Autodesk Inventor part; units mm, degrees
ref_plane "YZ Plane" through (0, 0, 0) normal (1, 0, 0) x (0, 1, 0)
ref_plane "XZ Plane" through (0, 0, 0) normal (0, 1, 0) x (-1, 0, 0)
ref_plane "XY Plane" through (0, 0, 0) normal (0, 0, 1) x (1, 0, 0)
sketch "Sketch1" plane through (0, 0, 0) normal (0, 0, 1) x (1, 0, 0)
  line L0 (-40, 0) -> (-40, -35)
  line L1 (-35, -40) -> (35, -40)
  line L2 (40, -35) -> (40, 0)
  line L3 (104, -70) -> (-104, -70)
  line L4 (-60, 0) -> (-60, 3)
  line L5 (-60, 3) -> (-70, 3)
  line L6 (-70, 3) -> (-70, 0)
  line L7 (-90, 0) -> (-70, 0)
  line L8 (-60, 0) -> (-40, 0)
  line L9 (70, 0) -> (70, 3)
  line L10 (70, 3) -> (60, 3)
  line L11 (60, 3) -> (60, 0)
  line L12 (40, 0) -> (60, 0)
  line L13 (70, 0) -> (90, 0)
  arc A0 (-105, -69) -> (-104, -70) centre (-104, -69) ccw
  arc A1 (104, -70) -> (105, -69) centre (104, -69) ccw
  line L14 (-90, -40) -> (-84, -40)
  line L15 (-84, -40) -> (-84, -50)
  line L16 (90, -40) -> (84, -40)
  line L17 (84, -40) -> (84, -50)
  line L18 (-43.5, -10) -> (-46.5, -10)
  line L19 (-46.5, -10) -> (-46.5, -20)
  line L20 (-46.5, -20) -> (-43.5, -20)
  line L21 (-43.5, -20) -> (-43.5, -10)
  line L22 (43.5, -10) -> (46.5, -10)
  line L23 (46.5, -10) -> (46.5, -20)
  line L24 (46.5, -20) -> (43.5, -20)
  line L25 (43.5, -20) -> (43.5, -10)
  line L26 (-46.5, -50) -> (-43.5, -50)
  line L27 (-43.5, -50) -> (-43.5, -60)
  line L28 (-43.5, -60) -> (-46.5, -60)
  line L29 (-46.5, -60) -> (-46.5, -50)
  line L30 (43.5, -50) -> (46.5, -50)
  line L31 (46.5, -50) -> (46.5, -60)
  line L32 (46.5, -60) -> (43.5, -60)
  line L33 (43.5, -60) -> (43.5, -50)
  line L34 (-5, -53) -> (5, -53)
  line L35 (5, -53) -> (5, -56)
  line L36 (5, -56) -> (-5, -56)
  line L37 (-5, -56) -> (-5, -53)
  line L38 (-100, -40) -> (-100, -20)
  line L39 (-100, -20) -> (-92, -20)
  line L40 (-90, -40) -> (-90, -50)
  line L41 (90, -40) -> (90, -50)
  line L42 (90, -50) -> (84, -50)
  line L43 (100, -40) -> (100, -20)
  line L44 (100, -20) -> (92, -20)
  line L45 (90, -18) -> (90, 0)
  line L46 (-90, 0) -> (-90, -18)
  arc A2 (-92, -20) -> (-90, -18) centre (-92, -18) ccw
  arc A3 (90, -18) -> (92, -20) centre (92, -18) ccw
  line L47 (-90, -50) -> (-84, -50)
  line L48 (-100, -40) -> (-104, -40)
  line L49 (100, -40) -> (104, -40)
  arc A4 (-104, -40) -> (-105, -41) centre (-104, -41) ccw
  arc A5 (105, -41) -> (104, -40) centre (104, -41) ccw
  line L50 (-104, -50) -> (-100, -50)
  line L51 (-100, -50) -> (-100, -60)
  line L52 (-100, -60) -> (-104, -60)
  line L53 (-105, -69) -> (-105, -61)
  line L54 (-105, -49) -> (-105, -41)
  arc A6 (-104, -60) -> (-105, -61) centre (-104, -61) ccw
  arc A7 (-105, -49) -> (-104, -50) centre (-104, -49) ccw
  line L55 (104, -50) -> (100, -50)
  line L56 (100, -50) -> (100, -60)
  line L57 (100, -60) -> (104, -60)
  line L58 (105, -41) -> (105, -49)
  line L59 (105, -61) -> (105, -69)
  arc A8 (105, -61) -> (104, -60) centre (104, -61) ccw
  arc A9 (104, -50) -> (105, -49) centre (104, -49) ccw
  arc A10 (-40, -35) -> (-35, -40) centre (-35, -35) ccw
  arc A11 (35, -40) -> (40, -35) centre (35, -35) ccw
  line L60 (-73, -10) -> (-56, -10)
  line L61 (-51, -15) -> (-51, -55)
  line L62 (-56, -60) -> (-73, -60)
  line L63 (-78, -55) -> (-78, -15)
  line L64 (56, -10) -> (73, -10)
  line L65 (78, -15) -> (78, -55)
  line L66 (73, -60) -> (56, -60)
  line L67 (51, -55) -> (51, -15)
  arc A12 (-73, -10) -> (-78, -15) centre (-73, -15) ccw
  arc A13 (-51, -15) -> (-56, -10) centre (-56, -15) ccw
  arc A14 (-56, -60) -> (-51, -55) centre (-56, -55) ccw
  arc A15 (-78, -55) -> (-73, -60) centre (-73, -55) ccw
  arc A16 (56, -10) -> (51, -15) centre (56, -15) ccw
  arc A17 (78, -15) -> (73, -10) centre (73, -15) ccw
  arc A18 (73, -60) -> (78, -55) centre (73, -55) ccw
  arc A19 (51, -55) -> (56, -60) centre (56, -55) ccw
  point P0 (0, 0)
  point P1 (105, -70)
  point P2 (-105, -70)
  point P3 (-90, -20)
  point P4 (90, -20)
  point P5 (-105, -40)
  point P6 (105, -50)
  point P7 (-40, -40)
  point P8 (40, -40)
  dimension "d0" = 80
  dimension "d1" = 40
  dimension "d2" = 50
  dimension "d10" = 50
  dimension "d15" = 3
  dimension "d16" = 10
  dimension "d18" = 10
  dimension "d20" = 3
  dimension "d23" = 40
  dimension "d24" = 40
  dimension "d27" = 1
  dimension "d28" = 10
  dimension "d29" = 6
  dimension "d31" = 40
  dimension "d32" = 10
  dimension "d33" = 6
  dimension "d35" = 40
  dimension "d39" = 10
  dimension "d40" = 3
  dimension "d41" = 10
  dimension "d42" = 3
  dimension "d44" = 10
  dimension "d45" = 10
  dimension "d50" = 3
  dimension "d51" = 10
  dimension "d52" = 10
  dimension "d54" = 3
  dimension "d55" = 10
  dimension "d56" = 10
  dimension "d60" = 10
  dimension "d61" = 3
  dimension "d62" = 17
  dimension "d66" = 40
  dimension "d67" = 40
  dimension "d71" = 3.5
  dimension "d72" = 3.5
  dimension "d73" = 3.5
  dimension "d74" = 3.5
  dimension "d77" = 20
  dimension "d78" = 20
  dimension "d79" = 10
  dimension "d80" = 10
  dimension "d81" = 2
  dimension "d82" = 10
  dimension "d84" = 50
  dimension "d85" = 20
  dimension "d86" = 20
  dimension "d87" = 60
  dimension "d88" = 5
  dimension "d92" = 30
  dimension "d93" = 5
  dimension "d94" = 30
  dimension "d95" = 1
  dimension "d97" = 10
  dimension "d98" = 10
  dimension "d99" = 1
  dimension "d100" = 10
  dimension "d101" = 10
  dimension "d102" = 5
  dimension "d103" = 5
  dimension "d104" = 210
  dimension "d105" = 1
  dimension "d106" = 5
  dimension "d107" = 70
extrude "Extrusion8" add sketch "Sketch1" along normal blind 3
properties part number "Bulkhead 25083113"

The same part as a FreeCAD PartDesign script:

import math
import FreeCAD as App
import Part
import Sketcher

V = App.Vector


def add_polygon(sketch, points):
    """Adds a closed chain of lines whose ends are joined by coincident constraints."""
    first, n = sketch.GeometryCount, len(points)
    for a, b in zip(points, points[1:] + points[:1]):
        sketch.addGeometry(Part.LineSegment(App.Vector(*a, 0), App.Vector(*b, 0)), False)
    for i in range(n):
        sketch.addConstraint(Sketcher.Constraint("Coincident", first + i, 2, first + (i + 1) % n, 1))

doc = App.newDocument("Part")
body = doc.addObject("PartDesign::Body", "Body")

sketch1 = doc.addObject("Sketcher::SketchObject", "Sketch")
body.addObject(sketch1)
sketch1.AttachmentSupport = (doc.XY_Plane, [""])
sketch1.MapMode = "FlatFace"
sketch1.addGeometry(Part.LineSegment(V(-40, -35, 0), V(-40, 0, 0)), False)
sketch1.addGeometry(Part.LineSegment(V(-40, 0, 0), V(-60, 0, 0)), False)
sketch1.addGeometry(Part.LineSegment(V(-60, 0, 0), V(-60, 3, 0)), False)
sketch1.addGeometry(Part.LineSegment(V(-60, 3, 0), V(-70, 3, 0)), False)
sketch1.addGeometry(Part.LineSegment(V(-70, 3, 0), V(-70, 0, 0)), False)
sketch1.addGeometry(Part.LineSegment(V(-70, 0, 0), V(-90, 0, 0)), False)
sketch1.addGeometry(Part.LineSegment(V(-90, 0, 0), V(-90, -18, 0)), False)
sketch1.addGeometry(Part.ArcOfCircle(Part.Circle(V(-92, -18, 0), V(0, 0, 1), 2), math.radians(-90), math.radians(0)), False)
sketch1.addGeometry(Part.LineSegment(V(-92, -20, 0), V(-100, -20, 0)), False)
sketch1.addGeometry(Part.LineSegment(V(-100, -20, 0), V(-100, -40, 0)), False)
sketch1.addGeometry(Part.LineSegment(V(-100, -40, 0), V(-104, -40, 0)), False)
sketch1.addGeometry(Part.ArcOfCircle(Part.Circle(V(-104, -41, 0), V(0, 0, 1), 1), math.radians(90), math.radians(180)), False)
sketch1.addGeometry(Part.LineSegment(V(-105, -41, 0), V(-105, -49, 0)), False)
sketch1.addGeometry(Part.ArcOfCircle(Part.Circle(V(-104, -49, 0), V(0, 0, 1), 1), math.radians(180), math.radians(270)), False)
sketch1.addGeometry(Part.LineSegment(V(-104, -50, 0), V(-100, -50, 0)), False)
sketch1.addGeometry(Part.LineSegment(V(-100, -50, 0), V(-100, -60, 0)), False)
sketch1.addGeometry(Part.LineSegment(V(-100, -60, 0), V(-104, -60, 0)), False)
sketch1.addGeometry(Part.ArcOfCircle(Part.Circle(V(-104, -61, 0), V(0, 0, 1), 1), math.radians(90), math.radians(180)), False)
sketch1.addGeometry(Part.LineSegment(V(-105, -61, 0), V(-105, -69, 0)), False)
sketch1.addGeometry(Part.ArcOfCircle(Part.Circle(V(-104, -69, 0), V(0, 0, 1), 1), math.radians(180), math.radians(270)), False)
sketch1.addGeometry(Part.LineSegment(V(-104, -70, 0), V(104, -70, 0)), False)
sketch1.addGeometry(Part.ArcOfCircle(Part.Circle(V(104, -69, 0), V(0, 0, 1), 1), math.radians(-90), math.radians(0)), False)
sketch1.addGeometry(Part.LineSegment(V(105, -69, 0), V(105, -61, 0)), False)
sketch1.addGeometry(Part.ArcOfCircle(Part.Circle(V(104, -61, 0), V(0, 0, 1), 1), math.radians(0), math.radians(90)), False)
sketch1.addGeometry(Part.LineSegment(V(104, -60, 0), V(100, -60, 0)), False)
sketch1.addGeometry(Part.LineSegment(V(100, -60, 0), V(100, -50, 0)), False)
sketch1.addGeometry(Part.LineSegment(V(100, -50, 0), V(104, -50, 0)), False)
sketch1.addGeometry(Part.ArcOfCircle(Part.Circle(V(104, -49, 0), V(0, 0, 1), 1), math.radians(-90), math.radians(0)), False)
sketch1.addGeometry(Part.LineSegment(V(105, -49, 0), V(105, -41, 0)), False)
sketch1.addGeometry(Part.ArcOfCircle(Part.Circle(V(104, -41, 0), V(0, 0, 1), 1), math.radians(0), math.radians(90)), False)
sketch1.addGeometry(Part.LineSegment(V(104, -40, 0), V(100, -40, 0)), False)
sketch1.addGeometry(Part.LineSegment(V(100, -40, 0), V(100, -20, 0)), False)
sketch1.addGeometry(Part.LineSegment(V(100, -20, 0), V(92, -20, 0)), False)
sketch1.addGeometry(Part.ArcOfCircle(Part.Circle(V(92, -18, 0), V(0, 0, 1), 2), math.radians(180), math.radians(270)), False)
sketch1.addGeometry(Part.LineSegment(V(90, -18, 0), V(90, 0, 0)), False)
sketch1.addGeometry(Part.LineSegment(V(90, 0, 0), V(70, 0, 0)), False)
sketch1.addGeometry(Part.LineSegment(V(70, 0, 0), V(70, 3, 0)), False)
sketch1.addGeometry(Part.LineSegment(V(70, 3, 0), V(60, 3, 0)), False)
sketch1.addGeometry(Part.LineSegment(V(60, 3, 0), V(60, 0, 0)), False)
sketch1.addGeometry(Part.LineSegment(V(60, 0, 0), V(40, 0, 0)), False)
sketch1.addGeometry(Part.LineSegment(V(40, 0, 0), V(40, -35, 0)), False)
sketch1.addGeometry(Part.ArcOfCircle(Part.Circle(V(35, -35, 0), V(0, 0, 1), 5), math.radians(-90), math.radians(0)), False)
sketch1.addGeometry(Part.LineSegment(V(35, -40, 0), V(-35, -40, 0)), False)
sketch1.addGeometry(Part.ArcOfCircle(Part.Circle(V(-35, -35, 0), V(0, 0, 1), 5), math.radians(180), math.radians(270)), False)
add_polygon(sketch1, [(-46.5, -60), (-46.5, -50), (-43.5, -50), (-43.5, -60)])
add_polygon(sketch1, [(-90, -50), (-90, -40), (-84, -40), (-84, -50)])
sketch1.addGeometry(Part.ArcOfCircle(Part.Circle(V(-73, -15, 0), V(0, 0, 1), 5), math.radians(90), math.radians(180)), False)
sketch1.addGeometry(Part.LineSegment(V(-73, -10, 0), V(-56, -10, 0)), False)
sketch1.addGeometry(Part.ArcOfCircle(Part.Circle(V(-56, -15, 0), V(0, 0, 1), 5), math.radians(0), math.radians(90)), False)
sketch1.addGeometry(Part.LineSegment(V(-51, -15, 0), V(-51, -55, 0)), False)
sketch1.addGeometry(Part.ArcOfCircle(Part.Circle(V(-56, -55, 0), V(0, 0, 1), 5), math.radians(-90), math.radians(0)), False)
sketch1.addGeometry(Part.LineSegment(V(-56, -60, 0), V(-73, -60, 0)), False)
sketch1.addGeometry(Part.ArcOfCircle(Part.Circle(V(-73, -55, 0), V(0, 0, 1), 5), math.radians(180), math.radians(270)), False)
sketch1.addGeometry(Part.LineSegment(V(-78, -55, 0), V(-78, -15, 0)), False)
add_polygon(sketch1, [(-5, -56), (-5, -53), (5, -53), (5, -56)])
add_polygon(sketch1, [(43.5, -60), (43.5, -50), (46.5, -50), (46.5, -60)])
add_polygon(sketch1, [(84, -40), (90, -40), (90, -50), (84, -50)])
sketch1.addGeometry(Part.ArcOfCircle(Part.Circle(V(56, -15, 0), V(0, 0, 1), 5), math.radians(90), math.radians(180)), False)
sketch1.addGeometry(Part.LineSegment(V(56, -10, 0), V(73, -10, 0)), False)
sketch1.addGeometry(Part.ArcOfCircle(Part.Circle(V(73, -15, 0), V(0, 0, 1), 5), math.radians(0), math.radians(90)), False)
sketch1.addGeometry(Part.LineSegment(V(78, -15, 0), V(78, -55, 0)), False)
sketch1.addGeometry(Part.ArcOfCircle(Part.Circle(V(73, -55, 0), V(0, 0, 1), 5), math.radians(-90), math.radians(0)), False)
sketch1.addGeometry(Part.LineSegment(V(73, -60, 0), V(56, -60, 0)), False)
sketch1.addGeometry(Part.ArcOfCircle(Part.Circle(V(56, -55, 0), V(0, 0, 1), 5), math.radians(180), math.radians(270)), False)
sketch1.addGeometry(Part.LineSegment(V(51, -55, 0), V(51, -15, 0)), False)
add_polygon(sketch1, [(-46.5, -10), (-43.5, -10), (-43.5, -20), (-46.5, -20)])
add_polygon(sketch1, [(43.5, -20), (43.5, -10), (46.5, -10), (46.5, -20)])
sketch1.addConstraint([
    Sketcher.Constraint("Coincident", 0, 2, 1, 1),
    Sketcher.Constraint("Coincident", 1, 2, 2, 1),
    Sketcher.Constraint("Coincident", 2, 2, 3, 1),
    Sketcher.Constraint("Coincident", 3, 2, 4, 1),
    Sketcher.Constraint("Coincident", 4, 2, 5, 1),
    Sketcher.Constraint("Coincident", 5, 2, 6, 1),
    Sketcher.Constraint("Tangent", 6, 2, 7, 2),
    Sketcher.Constraint("Tangent", 7, 1, 8, 1),
    Sketcher.Constraint("Coincident", 8, 2, 9, 1),
    Sketcher.Constraint("Coincident", 9, 2, 10, 1),
    Sketcher.Constraint("Tangent", 10, 2, 11, 1),
    Sketcher.Constraint("Tangent", 11, 2, 12, 1),
    Sketcher.Constraint("Tangent", 12, 2, 13, 1),
    Sketcher.Constraint("Tangent", 13, 2, 14, 1),
    Sketcher.Constraint("Coincident", 14, 2, 15, 1),
    Sketcher.Constraint("Coincident", 15, 2, 16, 1),
    Sketcher.Constraint("Tangent", 16, 2, 17, 1),
    Sketcher.Constraint("Tangent", 17, 2, 18, 1),
    Sketcher.Constraint("Tangent", 18, 2, 19, 1),
    Sketcher.Constraint("Tangent", 19, 2, 20, 1),
    Sketcher.Constraint("Tangent", 20, 2, 21, 1),
    Sketcher.Constraint("Tangent", 21, 2, 22, 1),
    Sketcher.Constraint("Tangent", 22, 2, 23, 1),
    Sketcher.Constraint("Tangent", 23, 2, 24, 1),
    Sketcher.Constraint("Coincident", 24, 2, 25, 1),
    Sketcher.Constraint("Coincident", 25, 2, 26, 1),
    Sketcher.Constraint("Tangent", 26, 2, 27, 1),
    Sketcher.Constraint("Tangent", 27, 2, 28, 1),
    Sketcher.Constraint("Tangent", 28, 2, 29, 1),
    Sketcher.Constraint("Tangent", 29, 2, 30, 1),
    Sketcher.Constraint("Coincident", 30, 2, 31, 1),
    Sketcher.Constraint("Coincident", 31, 2, 32, 1),
    Sketcher.Constraint("Tangent", 32, 2, 33, 2),
    Sketcher.Constraint("Tangent", 33, 1, 34, 1),
    Sketcher.Constraint("Coincident", 34, 2, 35, 1),
    Sketcher.Constraint("Coincident", 35, 2, 36, 1),
    Sketcher.Constraint("Coincident", 36, 2, 37, 1),
    Sketcher.Constraint("Coincident", 37, 2, 38, 1),
    Sketcher.Constraint("Coincident", 38, 2, 39, 1),
    Sketcher.Constraint("Coincident", 39, 2, 40, 1),
    Sketcher.Constraint("Tangent", 40, 2, 41, 2),
    Sketcher.Constraint("Tangent", 41, 1, 42, 1),
    Sketcher.Constraint("Tangent", 42, 2, 43, 2),
    Sketcher.Constraint("Tangent", 43, 1, 0, 1),
    Sketcher.Constraint("Tangent", 52, 1, 53, 1),
    Sketcher.Constraint("Tangent", 53, 2, 54, 2),
    Sketcher.Constraint("Tangent", 54, 1, 55, 1),
    Sketcher.Constraint("Tangent", 55, 2, 56, 2),
    Sketcher.Constraint("Tangent", 56, 1, 57, 1),
    Sketcher.Constraint("Tangent", 57, 2, 58, 2),
    Sketcher.Constraint("Tangent", 58, 1, 59, 1),
    Sketcher.Constraint("Tangent", 59, 2, 52, 2),
    Sketcher.Constraint("Tangent", 72, 1, 73, 1),
    Sketcher.Constraint("Tangent", 73, 2, 74, 2),
    Sketcher.Constraint("Tangent", 74, 1, 75, 1),
    Sketcher.Constraint("Tangent", 75, 2, 76, 2),
    Sketcher.Constraint("Tangent", 76, 1, 77, 1),
    Sketcher.Constraint("Tangent", 77, 2, 78, 2),
    Sketcher.Constraint("Tangent", 78, 1, 79, 1),
    Sketcher.Constraint("Tangent", 79, 2, 72, 2),
    Sketcher.Constraint("Vertical", 0),
    Sketcher.Constraint("Horizontal", 1),
    Sketcher.Constraint("Vertical", 2),
    Sketcher.Constraint("Horizontal", 3),
    Sketcher.Constraint("Vertical", 4),
    Sketcher.Constraint("Horizontal", 5),
    Sketcher.Constraint("Vertical", 6),
    Sketcher.Constraint("Horizontal", 8),
    Sketcher.Constraint("Vertical", 9),
    Sketcher.Constraint("Horizontal", 10),
    Sketcher.Constraint("Vertical", 12),
    Sketcher.Constraint("Horizontal", 14),
    Sketcher.Constraint("Vertical", 15),
    Sketcher.Constraint("Horizontal", 16),
    Sketcher.Constraint("Vertical", 18),
    Sketcher.Constraint("Horizontal", 20),
    Sketcher.Constraint("Vertical", 22),
    Sketcher.Constraint("Horizontal", 24),
    Sketcher.Constraint("Vertical", 25),
    Sketcher.Constraint("Horizontal", 26),
    Sketcher.Constraint("Vertical", 28),
    Sketcher.Constraint("Horizontal", 30),
    Sketcher.Constraint("Vertical", 31),
    Sketcher.Constraint("Horizontal", 32),
    Sketcher.Constraint("Vertical", 34),
    Sketcher.Constraint("Horizontal", 35),
    Sketcher.Constraint("Vertical", 36),
    Sketcher.Constraint("Horizontal", 37),
    Sketcher.Constraint("Vertical", 38),
    Sketcher.Constraint("Horizontal", 39),
    Sketcher.Constraint("Vertical", 40),
    Sketcher.Constraint("Horizontal", 42),
    Sketcher.Constraint("Vertical", 44),
    Sketcher.Constraint("Horizontal", 45),
    Sketcher.Constraint("Vertical", 46),
    Sketcher.Constraint("Horizontal", 47),
    Sketcher.Constraint("Vertical", 48),
    Sketcher.Constraint("Horizontal", 49),
    Sketcher.Constraint("Vertical", 50),
    Sketcher.Constraint("Horizontal", 51),
    Sketcher.Constraint("Horizontal", 53),
    Sketcher.Constraint("Vertical", 55),
    Sketcher.Constraint("Horizontal", 57),
    Sketcher.Constraint("Vertical", 59),
    Sketcher.Constraint("Vertical", 60),
    Sketcher.Constraint("Horizontal", 61),
    Sketcher.Constraint("Vertical", 62),
    Sketcher.Constraint("Horizontal", 63),
    Sketcher.Constraint("Vertical", 64),
    Sketcher.Constraint("Horizontal", 65),
    Sketcher.Constraint("Vertical", 66),
    Sketcher.Constraint("Horizontal", 67),
    Sketcher.Constraint("Horizontal", 68),
    Sketcher.Constraint("Vertical", 69),
    Sketcher.Constraint("Horizontal", 70),
    Sketcher.Constraint("Vertical", 71),
    Sketcher.Constraint("Horizontal", 73),
    Sketcher.Constraint("Vertical", 75),
    Sketcher.Constraint("Horizontal", 77),
    Sketcher.Constraint("Vertical", 79),
    Sketcher.Constraint("Horizontal", 80),
    Sketcher.Constraint("Vertical", 81),
    Sketcher.Constraint("Horizontal", 82),
    Sketcher.Constraint("Vertical", 83),
    Sketcher.Constraint("Vertical", 84),
    Sketcher.Constraint("Horizontal", 85),
    Sketcher.Constraint("Vertical", 86),
    Sketcher.Constraint("Horizontal", 87),
    Sketcher.Constraint("Equal", 11, 13),
    Sketcher.Constraint("Equal", 13, 17),
    Sketcher.Constraint("Equal", 17, 19),
    Sketcher.Constraint("Equal", 19, 21),
    Sketcher.Constraint("Equal", 21, 23),
    Sketcher.Constraint("Equal", 23, 27),
    Sketcher.Constraint("Equal", 27, 29),
    Sketcher.Constraint("Equal", 7, 33),
    Sketcher.Constraint("Equal", 41, 43),
    Sketcher.Constraint("Equal", 43, 52),
    Sketcher.Constraint("Equal", 52, 54),
    Sketcher.Constraint("Equal", 54, 56),
    Sketcher.Constraint("Equal", 56, 58),
    Sketcher.Constraint("Equal", 58, 72),
    Sketcher.Constraint("Equal", 72, 74),
    Sketcher.Constraint("Equal", 74, 76),
    Sketcher.Constraint("Equal", 76, 78),
    Sketcher.Constraint("Symmetric", 5, 2, 34, 2, -1, 1),
    Sketcher.Constraint("Symmetric", 1, 2, 38, 2, -1, 1),
    Sketcher.Constraint("Symmetric", 17, 3, 23, 3, -2),
    Sketcher.Constraint("Symmetric", 13, 3, 27, 3, -2),
    Sketcher.Constraint("Symmetric", 54, 3, 72, 3, -2),
    Sketcher.Constraint("Symmetric", 58, 3, 76, 3, -2),
    Sketcher.Constraint("Symmetric", 9, 2, 30, 2, -2),
    Sketcher.Constraint("Symmetric", 4, 2, 35, 2, -2),
    Sketcher.Constraint("Symmetric", 0, 2, 39, 2, -2),
    Sketcher.Constraint("Symmetric", 45, 2, 64, 2, -2),
    Sketcher.Constraint("Symmetric", 47, 2, 66, 2, -2),
    Sketcher.Constraint("Symmetric", 48, 2, 68, 2, -2),
    Sketcher.Constraint("Symmetric", 50, 2, 70, 2, -2),
    Sketcher.Constraint("Symmetric", 80, 2, 84, 2, -2),
    Sketcher.Constraint("Symmetric", 82, 2, 86, 2, -2),
    Sketcher.Constraint("Horizontal", 7, 3, 33, 3),
    Sketcher.Constraint("Horizontal", 3, 2, 36, 2),
    Sketcher.Constraint("Horizontal", 30, 2, 41, 1),
    Sketcher.Constraint("Horizontal", 26, 2, 44, 2),
    Sketcher.Constraint("Horizontal", 24, 2, 46, 2),
    Sketcher.Constraint("Horizontal", 42, 2, 48, 2),
    Sketcher.Constraint("Horizontal", 45, 2, 50, 2),
    Sketcher.Constraint("Horizontal", 47, 2, 56, 1),
    Sketcher.Constraint("Horizontal", 73, 2, 80, 2),
    Sketcher.Constraint("Horizontal", 32, 2, 81, 2),
    Sketcher.Constraint("Vertical", 13, 3, 17, 3),
    Sketcher.Constraint("Vertical", 9, 2, 14, 2),
    Sketcher.Constraint("Vertical", 25, 2, 30, 2),
    Sketcher.Constraint("Vertical", 6, 2, 48, 2),
    Sketcher.Constraint("Vertical", 46, 2, 80, 2),
    Sketcher.Constraint("Vertical", 47, 2, 82, 2),
    Sketcher.Constraint("Equal", 1, 5),
    Sketcher.Constraint("Equal", 37, 61),
    Sketcher.Constraint("Equal", 87, 2),
    Sketcher.Constraint("Equal", 39, 9),
    Sketcher.Constraint("Equal", 32, 12),
    Sketcher.Constraint("Equal", 63, 15),
    Sketcher.Constraint("Equal", 12, 18),
    Sketcher.Constraint("Equal", 46, 48),
    Sketcher.Constraint("Equal", 38, 60),
    Sketcher.Constraint("Equal", 71, 81),
    Sketcher.Constraint("Radius", 7, 2.0),
    Sketcher.Constraint("Radius", 11, 1.0),
    Sketcher.Constraint("Radius", 41, 5.0),
    Sketcher.Constraint("DistanceX", 1, 2, 1, 1, 20.0),
    Sketcher.Constraint("DistanceX", 3, 2, 3, 1, 10.0),
    Sketcher.Constraint("DistanceX", 42, 2, 42, 1, 70.0),
    Sketcher.Constraint("DistanceX", 45, 1, 45, 2, 3.0),
    Sketcher.Constraint("DistanceX", 49, 1, 49, 2, 6.0),
    Sketcher.Constraint("DistanceX", 53, 1, 53, 2, 17.0),
    Sketcher.Constraint("DistanceY", 7, 1, -1, 1, 20.0),
    Sketcher.Constraint("DistanceX", 60, 2, -1, 1, 5.0),
    Sketcher.Constraint("DistanceX", 10, 2, 10, 1, 4.0),
    Sketcher.Constraint("DistanceX", 52, 3, -1, 1, 73.0),
    Sketcher.Constraint("DistanceY", 60, 2, -1, 1, 53.0),
    Sketcher.Constraint("DistanceX", 44, 2, -1, 1, 46.5),
])
pad1 = doc.addObject("PartDesign::Pad", "Pad")
body.addObject(pad1)
pad1.Profile = sketch1
pad1.Length = 3

doc.recompute()
